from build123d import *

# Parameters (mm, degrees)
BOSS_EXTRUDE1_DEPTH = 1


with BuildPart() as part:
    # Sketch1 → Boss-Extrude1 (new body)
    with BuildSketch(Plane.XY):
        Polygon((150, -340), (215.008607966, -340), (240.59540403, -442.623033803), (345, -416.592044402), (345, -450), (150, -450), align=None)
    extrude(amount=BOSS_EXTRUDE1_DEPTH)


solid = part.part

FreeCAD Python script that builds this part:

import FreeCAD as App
import Part
import Sketcher

V = App.Vector
Q = App.Units.Quantity


def add_polygon(sketch, points):
    """Adds a closed chain of lines whose ends are joined by coincident constraints."""
    first, n = sketch.GeometryCount, len(points)
    for a, b in zip(points, points[1:] + points[:1]):
        sketch.addGeometry(Part.LineSegment(App.Vector(*a, 0), App.Vector(*b, 0)), False)
    for i in range(n):
        sketch.addConstraint(Sketcher.Constraint("Coincident", first + i, 2, first + (i + 1) % n, 1))

doc = App.newDocument("Part")
params = doc.addObject("Spreadsheet::Sheet", "Params")
for row, (alias, value) in enumerate([
    ("sketch1_width", "195 mm"),
    ("sketch1_height", "110 mm"),
    ("pad1_length", "1 mm"),
], start=1):
    params.set(f"A{row}", alias)
    params.set(f"B{row}", "=" + value)
    params.setAlias(f"B{row}", alias)

body = doc.addObject("PartDesign::Body", "Body")

sketch1 = body.newObject("Sketcher::SketchObject", "Sketch")
sketch1.AttachmentSupport = (doc.getObject("XY_Plane"), [""])
sketch1.MapMode = "FlatFace"
add_polygon(sketch1, [(215.008608, -340), (150, -340), (150, -450), (345, -450), (345, -416.592044), (240.595404, -442.623034)])
sketch1.addConstraint(Sketcher.Constraint("Horizontal", 0))
sketch1.addConstraint(Sketcher.Constraint("Vertical", 1))
sketch1.addConstraint(Sketcher.Constraint("Horizontal", 2))
sketch1.addConstraint(Sketcher.Constraint("Vertical", 3))
sketch1.addConstraint(Sketcher.Constraint("Perpendicular", 4, 5))
sketch1.addConstraint(Sketcher.Constraint("DistanceX", 2, 1, 2, 2, Q("195 mm")))
sketch1.addConstraint(Sketcher.Constraint("DistanceY", 1, 2, 1, 1, Q("110 mm")))
sketch1.addConstraint(Sketcher.Constraint("Angle", 4, Q("-166 deg")))
sketch1.addConstraint(Sketcher.Constraint("DistanceX", -1, 1, 0, 2, Q("150 mm")))
sketch1.addConstraint(Sketcher.Constraint("DistanceY", 0, 2, -1, 1, Q("340 mm")))
sketch1.addConstraint(Sketcher.Constraint("Distance", 4, Q("107.6008 mm")))
sketch1.addConstraint(Sketcher.Constraint("DistanceX", 0, 2, 0, 1, Q("65.008608 mm")))
sketch1.setExpression("Constraints[11]", "Params.sketch1_width")
sketch1.setExpression("Constraints[12]", "Params.sketch1_height")
pad1 = body.newObject("PartDesign::Pad", "Pad")
pad1.Profile = sketch1
pad1.setExpression("Length", "Params.pad1_length")

doc.recompute()
